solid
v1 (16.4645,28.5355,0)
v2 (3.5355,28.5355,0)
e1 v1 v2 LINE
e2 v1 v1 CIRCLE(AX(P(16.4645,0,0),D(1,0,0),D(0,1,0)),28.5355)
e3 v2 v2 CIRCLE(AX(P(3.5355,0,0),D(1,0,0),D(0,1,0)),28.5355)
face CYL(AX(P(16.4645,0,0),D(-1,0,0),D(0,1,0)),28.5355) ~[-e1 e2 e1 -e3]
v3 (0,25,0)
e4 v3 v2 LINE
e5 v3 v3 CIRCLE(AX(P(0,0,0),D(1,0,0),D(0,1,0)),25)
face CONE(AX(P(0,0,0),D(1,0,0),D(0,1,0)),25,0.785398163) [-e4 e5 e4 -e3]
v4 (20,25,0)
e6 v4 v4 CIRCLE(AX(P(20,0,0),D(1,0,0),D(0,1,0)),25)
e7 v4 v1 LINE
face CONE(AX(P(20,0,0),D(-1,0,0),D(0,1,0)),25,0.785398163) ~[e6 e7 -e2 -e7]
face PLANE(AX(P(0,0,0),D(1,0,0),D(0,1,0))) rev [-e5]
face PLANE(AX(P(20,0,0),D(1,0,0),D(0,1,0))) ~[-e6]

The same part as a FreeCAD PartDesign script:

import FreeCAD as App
import Part
import Sketcher

doc = App.newDocument("Part")
params = doc.addObject("Spreadsheet::Sheet", "Params")
for row, (alias, value) in enumerate([
    ("sketch1_width", "20 mm"),
    ("sketch1_height", "25 mm"),
    ("sketch1_length", "5 mm"),
    ("revolution_angle", "360 deg"),
], start=1):
    params.set(f"A{row}", alias)
    params.set(f"B{row}", "=" + value)
    params.setAlias(f"B{row}", alias)

body = doc.addObject("PartDesign::Body", "Body")

# Sketch on XY plane
sketch1 = body.newObject("Sketcher::SketchObject", "Sketch")
sketch1.AttachmentSupport = (doc.getObject("XY_Plane"), [""])
sketch1.MapMode = "FlatFace"
sketch1.addGeometry([
    Part.LineSegment(App.Vector(0, 25, 0), App.Vector(0, 0, 0)),  # 0
    Part.LineSegment(App.Vector(0, 0, 0), App.Vector(20, 0, 0)),  # 1
    Part.LineSegment(App.Vector(20, 0, 0), App.Vector(20, 25, 0)),  # 2
    Part.LineSegment(App.Vector(20, 25, 0), App.Vector(16.5, 28.5, 0)),  # 3
    Part.LineSegment(App.Vector(16.5, 28.5, 0), App.Vector(3.5, 28.5, 0)),  # 4
    Part.LineSegment(App.Vector(3.5, 28.5, 0), App.Vector(0, 25, 0)),  # 5
], False)
sketch1.addConstraint([
    Sketcher.Constraint("Coincident", 0, 2, 1, 1),
    Sketcher.Constraint("Coincident", 1, 2, 2, 1),
    Sketcher.Constraint("Coincident", 2, 2, 3, 1),
    Sketcher.Constraint("Coincident", 3, 2, 4, 1),
    Sketcher.Constraint("Coincident", 4, 2, 5, 1),
    Sketcher.Constraint("Coincident", 5, 2, 0, 1),
    Sketcher.Constraint("Vertical", 0),
    Sketcher.Constraint("Horizontal", 1),
    Sketcher.Constraint("Vertical", 2),
    Sketcher.Constraint("Horizontal", 4),
    Sketcher.Constraint("Coincident", 0, 2, -1, 1),
    Sketcher.Constraint("Perpendicular", 3, 5),
    Sketcher.Constraint("Horizontal", 2, 2, 5, 2),
    Sketcher.Constraint("Equal", 3, 5),
    Sketcher.Constraint("DistanceX", 1, 1, 1, 2, 20.0),
    Sketcher.Constraint("DistanceY", 0, 2, 0, 1, 25.0),
    Sketcher.Constraint("Distance", 3, 5.0),
])
sketch1.setExpression("Constraints[14]", "Params.sketch1_width")
sketch1.setExpression("Constraints[15]", "Params.sketch1_height")
sketch1.setExpression("Constraints[16]", "Params.sketch1_length")
revolution = body.newObject("PartDesign::Revolution", "Revolution")
revolution.Profile = sketch1
revolution.ReferenceAxis = (sketch1, ["H_Axis"])
revolution.setExpression("Angle", "Params.revolution_angle")

doc.recompute()
